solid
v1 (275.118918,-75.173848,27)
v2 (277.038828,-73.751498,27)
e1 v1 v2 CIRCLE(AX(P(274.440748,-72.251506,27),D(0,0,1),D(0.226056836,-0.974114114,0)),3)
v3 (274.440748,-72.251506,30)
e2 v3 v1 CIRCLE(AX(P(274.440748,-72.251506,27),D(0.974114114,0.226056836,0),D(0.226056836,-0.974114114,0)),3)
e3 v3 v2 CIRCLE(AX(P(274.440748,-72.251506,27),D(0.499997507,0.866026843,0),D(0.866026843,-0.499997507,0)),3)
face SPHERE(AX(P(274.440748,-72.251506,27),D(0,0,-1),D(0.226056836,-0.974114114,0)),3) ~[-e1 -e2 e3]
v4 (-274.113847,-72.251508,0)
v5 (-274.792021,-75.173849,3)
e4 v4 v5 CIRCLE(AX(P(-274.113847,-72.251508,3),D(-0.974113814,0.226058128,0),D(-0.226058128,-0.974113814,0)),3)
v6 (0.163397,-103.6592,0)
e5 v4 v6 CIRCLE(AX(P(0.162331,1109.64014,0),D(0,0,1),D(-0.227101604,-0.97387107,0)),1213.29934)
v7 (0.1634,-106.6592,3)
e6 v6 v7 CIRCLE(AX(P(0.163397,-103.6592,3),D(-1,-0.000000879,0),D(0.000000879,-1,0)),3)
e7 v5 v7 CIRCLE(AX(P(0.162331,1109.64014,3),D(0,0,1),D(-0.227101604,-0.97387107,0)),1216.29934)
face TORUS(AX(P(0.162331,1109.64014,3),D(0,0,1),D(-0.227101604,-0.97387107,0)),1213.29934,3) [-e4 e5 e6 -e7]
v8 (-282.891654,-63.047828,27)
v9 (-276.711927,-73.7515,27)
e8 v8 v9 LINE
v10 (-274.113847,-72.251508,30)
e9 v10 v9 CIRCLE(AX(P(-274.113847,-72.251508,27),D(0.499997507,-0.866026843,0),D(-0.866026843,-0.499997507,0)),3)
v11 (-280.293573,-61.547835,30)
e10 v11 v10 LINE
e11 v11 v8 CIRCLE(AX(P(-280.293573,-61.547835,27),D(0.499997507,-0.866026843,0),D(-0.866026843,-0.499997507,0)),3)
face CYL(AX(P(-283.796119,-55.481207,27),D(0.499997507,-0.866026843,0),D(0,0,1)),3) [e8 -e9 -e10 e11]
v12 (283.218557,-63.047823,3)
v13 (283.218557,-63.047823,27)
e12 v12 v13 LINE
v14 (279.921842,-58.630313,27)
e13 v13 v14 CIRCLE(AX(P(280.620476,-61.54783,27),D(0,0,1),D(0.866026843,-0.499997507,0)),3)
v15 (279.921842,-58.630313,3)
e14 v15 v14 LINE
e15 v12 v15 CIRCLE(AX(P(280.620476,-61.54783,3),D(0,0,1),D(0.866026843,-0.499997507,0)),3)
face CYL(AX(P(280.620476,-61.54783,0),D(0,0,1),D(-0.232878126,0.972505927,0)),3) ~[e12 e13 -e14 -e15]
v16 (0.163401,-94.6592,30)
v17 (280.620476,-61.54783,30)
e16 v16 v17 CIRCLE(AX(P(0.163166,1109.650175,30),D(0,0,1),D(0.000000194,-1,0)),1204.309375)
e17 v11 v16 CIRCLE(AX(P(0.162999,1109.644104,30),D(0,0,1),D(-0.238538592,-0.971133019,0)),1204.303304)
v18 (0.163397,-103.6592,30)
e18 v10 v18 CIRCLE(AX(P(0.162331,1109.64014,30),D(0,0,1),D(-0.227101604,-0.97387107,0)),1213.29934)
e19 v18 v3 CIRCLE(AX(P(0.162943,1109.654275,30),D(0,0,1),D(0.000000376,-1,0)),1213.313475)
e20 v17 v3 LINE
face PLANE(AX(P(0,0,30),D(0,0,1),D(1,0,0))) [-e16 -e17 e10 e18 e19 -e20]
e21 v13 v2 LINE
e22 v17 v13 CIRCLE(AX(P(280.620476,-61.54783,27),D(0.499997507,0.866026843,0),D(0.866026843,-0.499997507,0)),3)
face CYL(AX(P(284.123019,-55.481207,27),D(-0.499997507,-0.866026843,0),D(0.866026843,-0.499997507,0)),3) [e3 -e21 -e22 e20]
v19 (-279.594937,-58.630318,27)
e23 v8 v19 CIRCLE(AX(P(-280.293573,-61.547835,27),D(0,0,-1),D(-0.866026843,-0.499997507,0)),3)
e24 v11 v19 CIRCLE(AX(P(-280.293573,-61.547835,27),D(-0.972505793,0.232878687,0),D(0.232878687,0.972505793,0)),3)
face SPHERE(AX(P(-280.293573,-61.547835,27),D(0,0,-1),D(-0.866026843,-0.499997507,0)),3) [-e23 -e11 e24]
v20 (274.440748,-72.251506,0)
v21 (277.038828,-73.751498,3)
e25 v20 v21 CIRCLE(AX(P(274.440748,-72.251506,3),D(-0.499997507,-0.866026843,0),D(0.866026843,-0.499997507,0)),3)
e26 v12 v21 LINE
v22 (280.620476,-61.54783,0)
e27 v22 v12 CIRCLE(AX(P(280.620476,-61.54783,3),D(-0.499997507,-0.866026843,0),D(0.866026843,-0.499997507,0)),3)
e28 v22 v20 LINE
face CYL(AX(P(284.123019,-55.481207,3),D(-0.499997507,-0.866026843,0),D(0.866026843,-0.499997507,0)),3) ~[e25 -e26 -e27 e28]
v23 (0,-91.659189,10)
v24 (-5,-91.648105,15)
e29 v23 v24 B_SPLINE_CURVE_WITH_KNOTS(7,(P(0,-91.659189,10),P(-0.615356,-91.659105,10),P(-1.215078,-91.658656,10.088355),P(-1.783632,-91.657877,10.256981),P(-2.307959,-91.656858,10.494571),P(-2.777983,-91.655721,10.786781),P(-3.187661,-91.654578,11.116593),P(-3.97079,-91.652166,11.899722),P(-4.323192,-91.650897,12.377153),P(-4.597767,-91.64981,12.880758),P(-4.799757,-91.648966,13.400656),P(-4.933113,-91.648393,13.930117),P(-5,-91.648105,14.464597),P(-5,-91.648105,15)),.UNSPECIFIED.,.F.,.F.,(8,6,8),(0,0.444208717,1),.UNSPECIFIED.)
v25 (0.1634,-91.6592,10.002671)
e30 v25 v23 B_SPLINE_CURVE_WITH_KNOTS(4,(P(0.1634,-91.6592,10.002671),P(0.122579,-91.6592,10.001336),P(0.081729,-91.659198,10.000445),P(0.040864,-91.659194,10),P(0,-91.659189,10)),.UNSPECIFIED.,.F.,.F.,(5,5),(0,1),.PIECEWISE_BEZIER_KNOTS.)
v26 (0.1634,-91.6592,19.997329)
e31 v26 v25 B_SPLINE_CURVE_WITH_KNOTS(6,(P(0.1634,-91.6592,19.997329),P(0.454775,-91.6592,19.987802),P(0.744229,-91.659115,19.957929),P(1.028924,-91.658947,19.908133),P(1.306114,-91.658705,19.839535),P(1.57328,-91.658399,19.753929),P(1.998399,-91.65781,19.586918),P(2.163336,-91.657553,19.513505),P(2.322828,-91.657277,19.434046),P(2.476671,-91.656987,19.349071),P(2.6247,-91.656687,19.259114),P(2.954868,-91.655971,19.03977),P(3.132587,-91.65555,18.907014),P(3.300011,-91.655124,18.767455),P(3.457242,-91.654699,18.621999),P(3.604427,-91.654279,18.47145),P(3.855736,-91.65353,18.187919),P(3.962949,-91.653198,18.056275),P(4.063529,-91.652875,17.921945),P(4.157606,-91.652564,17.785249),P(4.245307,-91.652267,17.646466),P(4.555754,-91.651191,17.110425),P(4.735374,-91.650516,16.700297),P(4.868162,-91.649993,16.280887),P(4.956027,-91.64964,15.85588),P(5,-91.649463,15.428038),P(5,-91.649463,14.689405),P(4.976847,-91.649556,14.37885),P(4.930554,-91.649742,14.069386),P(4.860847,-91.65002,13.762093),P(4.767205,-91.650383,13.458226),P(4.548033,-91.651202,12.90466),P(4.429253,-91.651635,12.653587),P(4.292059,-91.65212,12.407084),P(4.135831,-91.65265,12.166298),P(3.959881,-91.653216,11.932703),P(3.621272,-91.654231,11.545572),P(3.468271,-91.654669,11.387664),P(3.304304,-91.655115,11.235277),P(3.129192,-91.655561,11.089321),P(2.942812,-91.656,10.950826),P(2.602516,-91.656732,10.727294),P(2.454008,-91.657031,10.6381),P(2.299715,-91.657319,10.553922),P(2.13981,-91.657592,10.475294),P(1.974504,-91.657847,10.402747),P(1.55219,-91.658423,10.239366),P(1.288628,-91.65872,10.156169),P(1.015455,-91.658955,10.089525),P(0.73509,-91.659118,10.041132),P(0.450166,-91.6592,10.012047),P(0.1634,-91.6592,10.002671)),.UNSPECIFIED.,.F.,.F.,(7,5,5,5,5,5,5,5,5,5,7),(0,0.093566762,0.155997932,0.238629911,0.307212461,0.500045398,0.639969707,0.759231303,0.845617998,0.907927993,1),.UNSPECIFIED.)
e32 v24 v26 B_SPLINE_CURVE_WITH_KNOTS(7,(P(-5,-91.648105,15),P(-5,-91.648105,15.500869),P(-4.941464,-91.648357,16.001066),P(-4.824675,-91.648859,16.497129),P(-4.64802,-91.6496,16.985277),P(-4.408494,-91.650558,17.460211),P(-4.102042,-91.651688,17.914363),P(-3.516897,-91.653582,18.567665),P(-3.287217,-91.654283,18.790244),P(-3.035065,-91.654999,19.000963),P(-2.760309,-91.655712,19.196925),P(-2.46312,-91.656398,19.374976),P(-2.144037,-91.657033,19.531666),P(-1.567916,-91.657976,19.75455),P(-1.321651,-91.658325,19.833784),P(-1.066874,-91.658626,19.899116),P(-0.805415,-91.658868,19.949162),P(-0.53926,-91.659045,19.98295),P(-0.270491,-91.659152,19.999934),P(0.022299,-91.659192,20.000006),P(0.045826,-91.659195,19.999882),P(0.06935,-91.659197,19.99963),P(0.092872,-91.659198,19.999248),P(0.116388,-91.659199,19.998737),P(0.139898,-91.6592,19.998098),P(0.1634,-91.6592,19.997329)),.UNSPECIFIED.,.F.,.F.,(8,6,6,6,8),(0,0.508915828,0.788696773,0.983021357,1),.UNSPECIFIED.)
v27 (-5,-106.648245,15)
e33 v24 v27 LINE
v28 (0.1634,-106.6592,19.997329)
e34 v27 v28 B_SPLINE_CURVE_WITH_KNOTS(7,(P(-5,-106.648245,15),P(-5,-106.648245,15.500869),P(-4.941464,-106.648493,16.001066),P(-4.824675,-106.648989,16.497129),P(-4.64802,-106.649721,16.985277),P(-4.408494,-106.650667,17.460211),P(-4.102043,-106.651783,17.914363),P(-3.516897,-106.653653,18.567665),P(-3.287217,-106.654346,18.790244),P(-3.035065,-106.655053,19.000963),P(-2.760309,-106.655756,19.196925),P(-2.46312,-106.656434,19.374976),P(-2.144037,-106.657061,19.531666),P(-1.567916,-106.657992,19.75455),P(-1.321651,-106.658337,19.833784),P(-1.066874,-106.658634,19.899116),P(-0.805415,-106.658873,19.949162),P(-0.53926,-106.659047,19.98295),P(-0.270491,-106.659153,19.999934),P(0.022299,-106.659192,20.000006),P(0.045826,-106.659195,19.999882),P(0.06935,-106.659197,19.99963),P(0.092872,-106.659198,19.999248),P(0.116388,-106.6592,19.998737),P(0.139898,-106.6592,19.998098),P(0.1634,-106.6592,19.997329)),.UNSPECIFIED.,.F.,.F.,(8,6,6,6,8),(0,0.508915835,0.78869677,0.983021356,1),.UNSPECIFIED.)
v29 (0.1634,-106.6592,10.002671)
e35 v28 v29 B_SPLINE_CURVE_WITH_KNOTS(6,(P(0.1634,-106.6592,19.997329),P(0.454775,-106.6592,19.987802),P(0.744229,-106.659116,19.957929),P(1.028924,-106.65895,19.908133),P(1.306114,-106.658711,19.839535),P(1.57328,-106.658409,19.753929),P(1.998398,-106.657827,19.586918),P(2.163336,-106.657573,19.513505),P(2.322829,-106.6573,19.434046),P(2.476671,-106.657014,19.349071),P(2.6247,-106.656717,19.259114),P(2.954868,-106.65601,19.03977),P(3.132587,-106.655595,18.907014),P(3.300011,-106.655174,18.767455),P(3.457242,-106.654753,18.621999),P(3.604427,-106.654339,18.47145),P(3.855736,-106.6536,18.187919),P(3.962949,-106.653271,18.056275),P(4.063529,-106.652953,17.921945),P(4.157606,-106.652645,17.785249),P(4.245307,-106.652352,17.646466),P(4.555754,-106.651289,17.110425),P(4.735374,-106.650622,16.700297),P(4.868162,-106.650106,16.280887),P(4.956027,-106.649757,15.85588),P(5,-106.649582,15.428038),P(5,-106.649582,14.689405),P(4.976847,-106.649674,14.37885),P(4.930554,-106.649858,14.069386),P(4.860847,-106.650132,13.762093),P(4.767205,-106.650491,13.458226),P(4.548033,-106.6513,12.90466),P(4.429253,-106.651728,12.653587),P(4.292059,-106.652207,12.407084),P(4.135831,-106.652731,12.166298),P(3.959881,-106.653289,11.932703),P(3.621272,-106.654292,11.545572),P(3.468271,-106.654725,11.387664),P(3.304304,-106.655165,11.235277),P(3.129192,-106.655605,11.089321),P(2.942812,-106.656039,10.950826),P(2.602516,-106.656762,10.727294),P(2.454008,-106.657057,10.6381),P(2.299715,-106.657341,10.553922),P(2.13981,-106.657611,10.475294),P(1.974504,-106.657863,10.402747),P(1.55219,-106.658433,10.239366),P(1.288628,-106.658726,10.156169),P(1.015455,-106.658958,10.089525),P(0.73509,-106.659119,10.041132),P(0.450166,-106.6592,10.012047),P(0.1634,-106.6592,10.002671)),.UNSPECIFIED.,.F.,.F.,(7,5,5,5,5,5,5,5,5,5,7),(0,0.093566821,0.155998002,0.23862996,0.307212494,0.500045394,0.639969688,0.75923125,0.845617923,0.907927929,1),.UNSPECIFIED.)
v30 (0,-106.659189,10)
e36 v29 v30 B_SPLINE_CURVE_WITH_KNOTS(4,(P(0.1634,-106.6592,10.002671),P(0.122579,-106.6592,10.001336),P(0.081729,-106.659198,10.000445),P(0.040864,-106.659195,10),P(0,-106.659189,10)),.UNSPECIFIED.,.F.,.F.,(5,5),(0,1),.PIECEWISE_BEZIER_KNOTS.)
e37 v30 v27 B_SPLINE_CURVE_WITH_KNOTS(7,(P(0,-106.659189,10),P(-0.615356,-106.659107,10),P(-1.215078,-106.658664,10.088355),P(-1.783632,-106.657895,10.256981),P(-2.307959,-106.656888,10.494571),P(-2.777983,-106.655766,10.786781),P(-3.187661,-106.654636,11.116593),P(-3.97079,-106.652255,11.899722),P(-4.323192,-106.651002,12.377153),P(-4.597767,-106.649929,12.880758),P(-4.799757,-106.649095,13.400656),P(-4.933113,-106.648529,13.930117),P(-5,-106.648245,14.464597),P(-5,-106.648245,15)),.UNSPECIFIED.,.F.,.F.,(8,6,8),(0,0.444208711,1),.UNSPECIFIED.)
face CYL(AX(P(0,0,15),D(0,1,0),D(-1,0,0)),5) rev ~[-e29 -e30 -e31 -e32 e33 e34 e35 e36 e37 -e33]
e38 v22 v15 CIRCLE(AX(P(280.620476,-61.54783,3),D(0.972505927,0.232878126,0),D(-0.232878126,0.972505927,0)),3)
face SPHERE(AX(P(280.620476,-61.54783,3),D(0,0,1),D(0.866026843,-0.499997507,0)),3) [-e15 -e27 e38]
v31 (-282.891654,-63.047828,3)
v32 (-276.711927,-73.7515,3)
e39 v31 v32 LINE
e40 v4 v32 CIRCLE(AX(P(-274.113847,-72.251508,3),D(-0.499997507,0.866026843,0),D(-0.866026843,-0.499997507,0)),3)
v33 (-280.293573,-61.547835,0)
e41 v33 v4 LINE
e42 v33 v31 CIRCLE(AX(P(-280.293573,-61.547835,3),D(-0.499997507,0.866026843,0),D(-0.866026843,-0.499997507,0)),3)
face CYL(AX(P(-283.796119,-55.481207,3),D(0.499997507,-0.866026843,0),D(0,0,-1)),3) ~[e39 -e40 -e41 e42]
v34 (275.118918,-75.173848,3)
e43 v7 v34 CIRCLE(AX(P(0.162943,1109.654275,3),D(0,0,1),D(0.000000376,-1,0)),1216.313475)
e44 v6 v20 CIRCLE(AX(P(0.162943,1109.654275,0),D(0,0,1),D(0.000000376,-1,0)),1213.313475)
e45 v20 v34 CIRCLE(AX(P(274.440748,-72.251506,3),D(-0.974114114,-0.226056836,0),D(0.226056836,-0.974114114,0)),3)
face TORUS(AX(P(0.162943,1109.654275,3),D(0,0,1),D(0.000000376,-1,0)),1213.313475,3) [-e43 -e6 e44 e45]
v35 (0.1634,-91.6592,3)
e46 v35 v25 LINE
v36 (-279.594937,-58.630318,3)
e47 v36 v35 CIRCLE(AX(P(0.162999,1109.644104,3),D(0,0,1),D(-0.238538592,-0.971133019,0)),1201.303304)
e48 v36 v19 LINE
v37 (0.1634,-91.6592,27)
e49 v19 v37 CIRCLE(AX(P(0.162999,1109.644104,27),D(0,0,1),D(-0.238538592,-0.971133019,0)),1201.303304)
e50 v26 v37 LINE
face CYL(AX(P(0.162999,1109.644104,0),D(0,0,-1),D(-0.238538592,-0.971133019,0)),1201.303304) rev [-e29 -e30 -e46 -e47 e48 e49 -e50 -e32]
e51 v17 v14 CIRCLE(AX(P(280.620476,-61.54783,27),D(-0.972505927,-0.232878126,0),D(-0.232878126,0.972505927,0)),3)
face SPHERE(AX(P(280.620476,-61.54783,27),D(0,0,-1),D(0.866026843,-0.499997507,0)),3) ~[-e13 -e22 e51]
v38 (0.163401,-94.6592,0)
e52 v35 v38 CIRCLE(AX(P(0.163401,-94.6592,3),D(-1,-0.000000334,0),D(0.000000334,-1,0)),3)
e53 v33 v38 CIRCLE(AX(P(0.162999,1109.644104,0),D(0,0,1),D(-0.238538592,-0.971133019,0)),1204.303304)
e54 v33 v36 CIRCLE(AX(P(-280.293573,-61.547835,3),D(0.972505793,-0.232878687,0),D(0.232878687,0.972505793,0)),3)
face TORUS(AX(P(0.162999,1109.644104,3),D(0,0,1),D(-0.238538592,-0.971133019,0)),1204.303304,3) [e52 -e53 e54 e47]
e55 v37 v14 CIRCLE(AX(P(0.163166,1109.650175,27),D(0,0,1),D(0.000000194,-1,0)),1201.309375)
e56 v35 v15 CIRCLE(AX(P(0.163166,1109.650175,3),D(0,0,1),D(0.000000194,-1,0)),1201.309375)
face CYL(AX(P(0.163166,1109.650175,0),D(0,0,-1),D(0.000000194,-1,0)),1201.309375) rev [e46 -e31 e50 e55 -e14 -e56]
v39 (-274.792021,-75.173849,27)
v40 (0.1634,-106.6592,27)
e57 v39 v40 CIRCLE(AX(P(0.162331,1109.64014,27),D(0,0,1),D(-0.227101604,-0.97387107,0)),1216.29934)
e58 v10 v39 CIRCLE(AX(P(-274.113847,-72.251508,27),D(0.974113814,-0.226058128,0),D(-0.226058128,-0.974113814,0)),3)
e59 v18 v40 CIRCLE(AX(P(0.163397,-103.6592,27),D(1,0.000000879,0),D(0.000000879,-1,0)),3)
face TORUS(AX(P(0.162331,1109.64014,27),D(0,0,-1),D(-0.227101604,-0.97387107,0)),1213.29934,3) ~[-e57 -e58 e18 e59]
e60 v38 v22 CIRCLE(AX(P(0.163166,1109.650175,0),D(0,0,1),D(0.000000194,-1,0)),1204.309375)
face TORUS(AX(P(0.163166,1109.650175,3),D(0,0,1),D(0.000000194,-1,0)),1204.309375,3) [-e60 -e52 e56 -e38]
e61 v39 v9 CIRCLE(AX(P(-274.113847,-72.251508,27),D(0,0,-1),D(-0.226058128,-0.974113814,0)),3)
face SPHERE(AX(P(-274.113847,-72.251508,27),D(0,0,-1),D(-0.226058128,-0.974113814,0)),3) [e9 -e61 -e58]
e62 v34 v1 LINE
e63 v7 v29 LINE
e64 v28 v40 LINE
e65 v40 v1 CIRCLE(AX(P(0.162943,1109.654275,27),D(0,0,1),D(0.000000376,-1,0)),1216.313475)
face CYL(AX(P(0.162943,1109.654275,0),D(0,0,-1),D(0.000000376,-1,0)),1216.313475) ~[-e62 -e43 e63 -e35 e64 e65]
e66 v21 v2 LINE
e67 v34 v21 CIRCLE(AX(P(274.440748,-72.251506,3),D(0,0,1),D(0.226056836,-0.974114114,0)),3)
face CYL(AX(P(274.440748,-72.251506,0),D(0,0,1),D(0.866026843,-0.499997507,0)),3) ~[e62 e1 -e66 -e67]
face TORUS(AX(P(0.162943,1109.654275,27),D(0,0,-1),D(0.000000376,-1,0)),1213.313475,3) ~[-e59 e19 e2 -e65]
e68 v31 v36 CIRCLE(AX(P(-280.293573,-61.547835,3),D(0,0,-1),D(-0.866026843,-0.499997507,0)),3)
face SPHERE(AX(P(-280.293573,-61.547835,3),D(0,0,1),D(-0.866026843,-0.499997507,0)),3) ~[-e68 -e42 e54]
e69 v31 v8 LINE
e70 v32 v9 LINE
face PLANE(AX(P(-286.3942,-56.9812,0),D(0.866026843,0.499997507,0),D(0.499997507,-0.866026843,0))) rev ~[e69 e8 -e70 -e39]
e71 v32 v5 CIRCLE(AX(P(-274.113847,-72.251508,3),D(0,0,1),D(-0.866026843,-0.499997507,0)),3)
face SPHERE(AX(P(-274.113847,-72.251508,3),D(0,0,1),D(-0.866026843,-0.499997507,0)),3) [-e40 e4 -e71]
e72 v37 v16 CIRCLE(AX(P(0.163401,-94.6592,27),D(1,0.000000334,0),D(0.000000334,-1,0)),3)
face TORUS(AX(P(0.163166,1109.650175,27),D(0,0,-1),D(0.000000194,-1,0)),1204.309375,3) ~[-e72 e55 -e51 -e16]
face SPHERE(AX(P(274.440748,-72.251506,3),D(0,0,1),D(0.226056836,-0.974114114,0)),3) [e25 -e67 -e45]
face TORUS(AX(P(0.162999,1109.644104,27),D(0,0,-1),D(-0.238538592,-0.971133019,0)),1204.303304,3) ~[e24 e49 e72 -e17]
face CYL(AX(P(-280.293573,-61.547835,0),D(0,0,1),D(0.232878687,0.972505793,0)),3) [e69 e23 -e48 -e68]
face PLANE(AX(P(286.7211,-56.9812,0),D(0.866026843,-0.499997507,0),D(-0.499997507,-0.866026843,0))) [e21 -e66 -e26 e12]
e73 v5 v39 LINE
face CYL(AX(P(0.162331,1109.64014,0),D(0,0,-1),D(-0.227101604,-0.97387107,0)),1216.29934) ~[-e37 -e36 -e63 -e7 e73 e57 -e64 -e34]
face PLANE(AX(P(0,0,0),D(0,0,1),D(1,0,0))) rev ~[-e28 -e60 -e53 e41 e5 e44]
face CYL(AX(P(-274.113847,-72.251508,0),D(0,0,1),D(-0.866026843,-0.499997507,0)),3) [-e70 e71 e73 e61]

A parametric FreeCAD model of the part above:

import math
import FreeCAD as App
import Part
import Sketcher
from FreeCAD import Vector
Q = App.Units.Quantity


def edges_at(feature, points):
    """Names of the edges that pass closest to the given points."""
    edges = feature.Shape.Edges
    near = lambda p: min(range(len(edges)), key=lambda i: edges[i].distToShape(Part.Vertex(*p))[0])
    return sorted({f"Edge{near(p) + 1}" for p in points})

doc = App.newDocument("Part")
body = doc.addObject("PartDesign::Body", "Body")

# Sketch on XY plane
sketch1 = body.newObject("Sketcher::SketchObject", "Sketch")
sketch1.AttachmentSupport = (doc.getObject("XY_Plane"), [""])
sketch1.MapMode = "FlatFace"
sketch1.addGeometry(Part.ArcOfCircle(Part.Circle(Vector(0.163166, 1109.650175, 0), Vector(0, 0, 1), 1201.309375), math.radians(-89.999989), math.radians(-76.199732)), False)
sketch1.addGeometry(Part.ArcOfCircle(Part.Circle(Vector(0.162999, 1109.644104, 0), Vector(0, 0, 1), 1201.303304), math.radians(-103.800303), math.radians(-89.999981)), False)
sketch1.addGeometry(Part.LineSegment(Vector(-286.3942, -56.9812, 0), Vector(-276.0612, -74.8786, 0)), False)
sketch1.addGeometry(Part.ArcOfCircle(Part.Circle(Vector(0.162331, 1109.64014, 0), Vector(0, 0, 1), 1216.29934), math.radians(-103.126491), math.radians(-89.99995)), False)
sketch1.addGeometry(Part.ArcOfCircle(Part.Circle(Vector(0.162943, 1109.654275, 0), Vector(0, 0, 1), 1216.313475), math.radians(-89.999978), math.radians(-76.873586)), False)
sketch1.addGeometry(Part.LineSegment(Vector(276.3881, -74.8786, 0), Vector(286.7211, -56.9812, 0)), False)
sketch1.addConstraint(Sketcher.Constraint("Coincident", 0, 1, 1, 2))
sketch1.addConstraint(Sketcher.Constraint("Coincident", 1, 1, 2, 1))
sketch1.addConstraint(Sketcher.Constraint("Coincident", 2, 2, 3, 1))
sketch1.addConstraint(Sketcher.Constraint("Coincident", 3, 2, 4, 1))
sketch1.addConstraint(Sketcher.Constraint("Coincident", 4, 2, 5, 1))
sketch1.addConstraint(Sketcher.Constraint("Coincident", 5, 2, 0, 2))
sketch1.addConstraint(Sketcher.Constraint("DistanceY", 3, 2, 0, 1, Q("15 mm")))
sketch1.addConstraint(Sketcher.Constraint("Radius", 0, Q("1201.3094 mm")))
sketch1.addConstraint(Sketcher.Constraint("Radius", 1, Q("1201.3033 mm")))
sketch1.addConstraint(Sketcher.Constraint("Radius", 3, Q("1216.2993 mm")))
sketch1.addConstraint(Sketcher.Constraint("Radius", 4, Q("1216.3135 mm")))
sketch1.addConstraint(Sketcher.Constraint("Distance", 2, Q("20.666 mm")))
sketch1.addConstraint(Sketcher.Constraint("Distance", 5, Q("20.666 mm")))
sketch1.addConstraint(Sketcher.Constraint("DistanceX", -1, 1, 1, 3, Q("0.163 mm")))
sketch1.addConstraint(Sketcher.Constraint("DistanceY", -1, 1, 1, 3, Q("1109.644 mm")))
sketch1.addConstraint(Sketcher.Constraint("DistanceX", -1, 1, 4, 3, Q("0.163 mm")))
sketch1.addConstraint(Sketcher.Constraint("DistanceX", -1, 1, 5, 2, Q("286.721 mm")))
sketch1.addConstraint(Sketcher.Constraint("DistanceX", 3, 3, 0, 1, Q("0.001 mm")))
sketch1.addConstraint(Sketcher.Constraint("DistanceX", 3, 3, 3, 2, Q("0.001 mm")))
sketch1.addConstraint(Sketcher.Constraint("DistanceY", 0, 1, 5, 2, Q("34.678 mm")))
sketch1.addConstraint(Sketcher.Constraint("DistanceX", -1, 1, 3, 3, Q("0.1623 mm")))
sketch1.addConstraint(Sketcher.Constraint("DistanceX", 2, 2, -1, 1, Q("276.0612 mm")))
pad1 = body.newObject("PartDesign::Pad", "Pad")
pad1.Profile = sketch1
pad1.Length = 30
doc.recompute()

fillet = body.newObject("PartDesign::Fillet", "Fillet")
fillet.Base = (pad1, edges_at(pad1, [
    (-144.161, -82.958, 30),
    (139.187, -98.688, 30),
    (144.488, -82.958, 0),
    (286.721, -56.981, 15),
    (281.555, -65.93, 0),
    (281.555, -65.93, 30),
    (276.388, -74.879, 15),
    (139.187, -98.688, 0),
    (-286.394, -56.981, 15),
    (-281.228, -65.93, 30),
    (-276.061, -74.879, 15),
    (-281.228, -65.93, 0),
]))
fillet.Radius = 3

# Sketch on XZ plane
sketch2 = body.newObject("Sketcher::SketchObject", "Sketch001")
sketch2.AttachmentSupport = (doc.getObject("XZ_Plane"), [""])
sketch2.MapMode = "FlatFace"
sketch2.addGeometry(Part.Circle(Vector(0, 15, 0), Vector(0, 0, 1), 5), False)
sketch2.addConstraint(Sketcher.Constraint("PointOnObject", 0, 3, -2))
sketch2.addConstraint(Sketcher.Constraint("Diameter", 0, Q("10 mm")))
sketch2.addConstraint(Sketcher.Constraint("DistanceY", -1, 1, 0, 3, Q("15 mm")))
pocket1 = body.newObject("PartDesign::Pocket", "Pocket")
pocket1.Profile = sketch2
pocket1.Length = 300
pocket1.Reversed = True

doc.recompute()
